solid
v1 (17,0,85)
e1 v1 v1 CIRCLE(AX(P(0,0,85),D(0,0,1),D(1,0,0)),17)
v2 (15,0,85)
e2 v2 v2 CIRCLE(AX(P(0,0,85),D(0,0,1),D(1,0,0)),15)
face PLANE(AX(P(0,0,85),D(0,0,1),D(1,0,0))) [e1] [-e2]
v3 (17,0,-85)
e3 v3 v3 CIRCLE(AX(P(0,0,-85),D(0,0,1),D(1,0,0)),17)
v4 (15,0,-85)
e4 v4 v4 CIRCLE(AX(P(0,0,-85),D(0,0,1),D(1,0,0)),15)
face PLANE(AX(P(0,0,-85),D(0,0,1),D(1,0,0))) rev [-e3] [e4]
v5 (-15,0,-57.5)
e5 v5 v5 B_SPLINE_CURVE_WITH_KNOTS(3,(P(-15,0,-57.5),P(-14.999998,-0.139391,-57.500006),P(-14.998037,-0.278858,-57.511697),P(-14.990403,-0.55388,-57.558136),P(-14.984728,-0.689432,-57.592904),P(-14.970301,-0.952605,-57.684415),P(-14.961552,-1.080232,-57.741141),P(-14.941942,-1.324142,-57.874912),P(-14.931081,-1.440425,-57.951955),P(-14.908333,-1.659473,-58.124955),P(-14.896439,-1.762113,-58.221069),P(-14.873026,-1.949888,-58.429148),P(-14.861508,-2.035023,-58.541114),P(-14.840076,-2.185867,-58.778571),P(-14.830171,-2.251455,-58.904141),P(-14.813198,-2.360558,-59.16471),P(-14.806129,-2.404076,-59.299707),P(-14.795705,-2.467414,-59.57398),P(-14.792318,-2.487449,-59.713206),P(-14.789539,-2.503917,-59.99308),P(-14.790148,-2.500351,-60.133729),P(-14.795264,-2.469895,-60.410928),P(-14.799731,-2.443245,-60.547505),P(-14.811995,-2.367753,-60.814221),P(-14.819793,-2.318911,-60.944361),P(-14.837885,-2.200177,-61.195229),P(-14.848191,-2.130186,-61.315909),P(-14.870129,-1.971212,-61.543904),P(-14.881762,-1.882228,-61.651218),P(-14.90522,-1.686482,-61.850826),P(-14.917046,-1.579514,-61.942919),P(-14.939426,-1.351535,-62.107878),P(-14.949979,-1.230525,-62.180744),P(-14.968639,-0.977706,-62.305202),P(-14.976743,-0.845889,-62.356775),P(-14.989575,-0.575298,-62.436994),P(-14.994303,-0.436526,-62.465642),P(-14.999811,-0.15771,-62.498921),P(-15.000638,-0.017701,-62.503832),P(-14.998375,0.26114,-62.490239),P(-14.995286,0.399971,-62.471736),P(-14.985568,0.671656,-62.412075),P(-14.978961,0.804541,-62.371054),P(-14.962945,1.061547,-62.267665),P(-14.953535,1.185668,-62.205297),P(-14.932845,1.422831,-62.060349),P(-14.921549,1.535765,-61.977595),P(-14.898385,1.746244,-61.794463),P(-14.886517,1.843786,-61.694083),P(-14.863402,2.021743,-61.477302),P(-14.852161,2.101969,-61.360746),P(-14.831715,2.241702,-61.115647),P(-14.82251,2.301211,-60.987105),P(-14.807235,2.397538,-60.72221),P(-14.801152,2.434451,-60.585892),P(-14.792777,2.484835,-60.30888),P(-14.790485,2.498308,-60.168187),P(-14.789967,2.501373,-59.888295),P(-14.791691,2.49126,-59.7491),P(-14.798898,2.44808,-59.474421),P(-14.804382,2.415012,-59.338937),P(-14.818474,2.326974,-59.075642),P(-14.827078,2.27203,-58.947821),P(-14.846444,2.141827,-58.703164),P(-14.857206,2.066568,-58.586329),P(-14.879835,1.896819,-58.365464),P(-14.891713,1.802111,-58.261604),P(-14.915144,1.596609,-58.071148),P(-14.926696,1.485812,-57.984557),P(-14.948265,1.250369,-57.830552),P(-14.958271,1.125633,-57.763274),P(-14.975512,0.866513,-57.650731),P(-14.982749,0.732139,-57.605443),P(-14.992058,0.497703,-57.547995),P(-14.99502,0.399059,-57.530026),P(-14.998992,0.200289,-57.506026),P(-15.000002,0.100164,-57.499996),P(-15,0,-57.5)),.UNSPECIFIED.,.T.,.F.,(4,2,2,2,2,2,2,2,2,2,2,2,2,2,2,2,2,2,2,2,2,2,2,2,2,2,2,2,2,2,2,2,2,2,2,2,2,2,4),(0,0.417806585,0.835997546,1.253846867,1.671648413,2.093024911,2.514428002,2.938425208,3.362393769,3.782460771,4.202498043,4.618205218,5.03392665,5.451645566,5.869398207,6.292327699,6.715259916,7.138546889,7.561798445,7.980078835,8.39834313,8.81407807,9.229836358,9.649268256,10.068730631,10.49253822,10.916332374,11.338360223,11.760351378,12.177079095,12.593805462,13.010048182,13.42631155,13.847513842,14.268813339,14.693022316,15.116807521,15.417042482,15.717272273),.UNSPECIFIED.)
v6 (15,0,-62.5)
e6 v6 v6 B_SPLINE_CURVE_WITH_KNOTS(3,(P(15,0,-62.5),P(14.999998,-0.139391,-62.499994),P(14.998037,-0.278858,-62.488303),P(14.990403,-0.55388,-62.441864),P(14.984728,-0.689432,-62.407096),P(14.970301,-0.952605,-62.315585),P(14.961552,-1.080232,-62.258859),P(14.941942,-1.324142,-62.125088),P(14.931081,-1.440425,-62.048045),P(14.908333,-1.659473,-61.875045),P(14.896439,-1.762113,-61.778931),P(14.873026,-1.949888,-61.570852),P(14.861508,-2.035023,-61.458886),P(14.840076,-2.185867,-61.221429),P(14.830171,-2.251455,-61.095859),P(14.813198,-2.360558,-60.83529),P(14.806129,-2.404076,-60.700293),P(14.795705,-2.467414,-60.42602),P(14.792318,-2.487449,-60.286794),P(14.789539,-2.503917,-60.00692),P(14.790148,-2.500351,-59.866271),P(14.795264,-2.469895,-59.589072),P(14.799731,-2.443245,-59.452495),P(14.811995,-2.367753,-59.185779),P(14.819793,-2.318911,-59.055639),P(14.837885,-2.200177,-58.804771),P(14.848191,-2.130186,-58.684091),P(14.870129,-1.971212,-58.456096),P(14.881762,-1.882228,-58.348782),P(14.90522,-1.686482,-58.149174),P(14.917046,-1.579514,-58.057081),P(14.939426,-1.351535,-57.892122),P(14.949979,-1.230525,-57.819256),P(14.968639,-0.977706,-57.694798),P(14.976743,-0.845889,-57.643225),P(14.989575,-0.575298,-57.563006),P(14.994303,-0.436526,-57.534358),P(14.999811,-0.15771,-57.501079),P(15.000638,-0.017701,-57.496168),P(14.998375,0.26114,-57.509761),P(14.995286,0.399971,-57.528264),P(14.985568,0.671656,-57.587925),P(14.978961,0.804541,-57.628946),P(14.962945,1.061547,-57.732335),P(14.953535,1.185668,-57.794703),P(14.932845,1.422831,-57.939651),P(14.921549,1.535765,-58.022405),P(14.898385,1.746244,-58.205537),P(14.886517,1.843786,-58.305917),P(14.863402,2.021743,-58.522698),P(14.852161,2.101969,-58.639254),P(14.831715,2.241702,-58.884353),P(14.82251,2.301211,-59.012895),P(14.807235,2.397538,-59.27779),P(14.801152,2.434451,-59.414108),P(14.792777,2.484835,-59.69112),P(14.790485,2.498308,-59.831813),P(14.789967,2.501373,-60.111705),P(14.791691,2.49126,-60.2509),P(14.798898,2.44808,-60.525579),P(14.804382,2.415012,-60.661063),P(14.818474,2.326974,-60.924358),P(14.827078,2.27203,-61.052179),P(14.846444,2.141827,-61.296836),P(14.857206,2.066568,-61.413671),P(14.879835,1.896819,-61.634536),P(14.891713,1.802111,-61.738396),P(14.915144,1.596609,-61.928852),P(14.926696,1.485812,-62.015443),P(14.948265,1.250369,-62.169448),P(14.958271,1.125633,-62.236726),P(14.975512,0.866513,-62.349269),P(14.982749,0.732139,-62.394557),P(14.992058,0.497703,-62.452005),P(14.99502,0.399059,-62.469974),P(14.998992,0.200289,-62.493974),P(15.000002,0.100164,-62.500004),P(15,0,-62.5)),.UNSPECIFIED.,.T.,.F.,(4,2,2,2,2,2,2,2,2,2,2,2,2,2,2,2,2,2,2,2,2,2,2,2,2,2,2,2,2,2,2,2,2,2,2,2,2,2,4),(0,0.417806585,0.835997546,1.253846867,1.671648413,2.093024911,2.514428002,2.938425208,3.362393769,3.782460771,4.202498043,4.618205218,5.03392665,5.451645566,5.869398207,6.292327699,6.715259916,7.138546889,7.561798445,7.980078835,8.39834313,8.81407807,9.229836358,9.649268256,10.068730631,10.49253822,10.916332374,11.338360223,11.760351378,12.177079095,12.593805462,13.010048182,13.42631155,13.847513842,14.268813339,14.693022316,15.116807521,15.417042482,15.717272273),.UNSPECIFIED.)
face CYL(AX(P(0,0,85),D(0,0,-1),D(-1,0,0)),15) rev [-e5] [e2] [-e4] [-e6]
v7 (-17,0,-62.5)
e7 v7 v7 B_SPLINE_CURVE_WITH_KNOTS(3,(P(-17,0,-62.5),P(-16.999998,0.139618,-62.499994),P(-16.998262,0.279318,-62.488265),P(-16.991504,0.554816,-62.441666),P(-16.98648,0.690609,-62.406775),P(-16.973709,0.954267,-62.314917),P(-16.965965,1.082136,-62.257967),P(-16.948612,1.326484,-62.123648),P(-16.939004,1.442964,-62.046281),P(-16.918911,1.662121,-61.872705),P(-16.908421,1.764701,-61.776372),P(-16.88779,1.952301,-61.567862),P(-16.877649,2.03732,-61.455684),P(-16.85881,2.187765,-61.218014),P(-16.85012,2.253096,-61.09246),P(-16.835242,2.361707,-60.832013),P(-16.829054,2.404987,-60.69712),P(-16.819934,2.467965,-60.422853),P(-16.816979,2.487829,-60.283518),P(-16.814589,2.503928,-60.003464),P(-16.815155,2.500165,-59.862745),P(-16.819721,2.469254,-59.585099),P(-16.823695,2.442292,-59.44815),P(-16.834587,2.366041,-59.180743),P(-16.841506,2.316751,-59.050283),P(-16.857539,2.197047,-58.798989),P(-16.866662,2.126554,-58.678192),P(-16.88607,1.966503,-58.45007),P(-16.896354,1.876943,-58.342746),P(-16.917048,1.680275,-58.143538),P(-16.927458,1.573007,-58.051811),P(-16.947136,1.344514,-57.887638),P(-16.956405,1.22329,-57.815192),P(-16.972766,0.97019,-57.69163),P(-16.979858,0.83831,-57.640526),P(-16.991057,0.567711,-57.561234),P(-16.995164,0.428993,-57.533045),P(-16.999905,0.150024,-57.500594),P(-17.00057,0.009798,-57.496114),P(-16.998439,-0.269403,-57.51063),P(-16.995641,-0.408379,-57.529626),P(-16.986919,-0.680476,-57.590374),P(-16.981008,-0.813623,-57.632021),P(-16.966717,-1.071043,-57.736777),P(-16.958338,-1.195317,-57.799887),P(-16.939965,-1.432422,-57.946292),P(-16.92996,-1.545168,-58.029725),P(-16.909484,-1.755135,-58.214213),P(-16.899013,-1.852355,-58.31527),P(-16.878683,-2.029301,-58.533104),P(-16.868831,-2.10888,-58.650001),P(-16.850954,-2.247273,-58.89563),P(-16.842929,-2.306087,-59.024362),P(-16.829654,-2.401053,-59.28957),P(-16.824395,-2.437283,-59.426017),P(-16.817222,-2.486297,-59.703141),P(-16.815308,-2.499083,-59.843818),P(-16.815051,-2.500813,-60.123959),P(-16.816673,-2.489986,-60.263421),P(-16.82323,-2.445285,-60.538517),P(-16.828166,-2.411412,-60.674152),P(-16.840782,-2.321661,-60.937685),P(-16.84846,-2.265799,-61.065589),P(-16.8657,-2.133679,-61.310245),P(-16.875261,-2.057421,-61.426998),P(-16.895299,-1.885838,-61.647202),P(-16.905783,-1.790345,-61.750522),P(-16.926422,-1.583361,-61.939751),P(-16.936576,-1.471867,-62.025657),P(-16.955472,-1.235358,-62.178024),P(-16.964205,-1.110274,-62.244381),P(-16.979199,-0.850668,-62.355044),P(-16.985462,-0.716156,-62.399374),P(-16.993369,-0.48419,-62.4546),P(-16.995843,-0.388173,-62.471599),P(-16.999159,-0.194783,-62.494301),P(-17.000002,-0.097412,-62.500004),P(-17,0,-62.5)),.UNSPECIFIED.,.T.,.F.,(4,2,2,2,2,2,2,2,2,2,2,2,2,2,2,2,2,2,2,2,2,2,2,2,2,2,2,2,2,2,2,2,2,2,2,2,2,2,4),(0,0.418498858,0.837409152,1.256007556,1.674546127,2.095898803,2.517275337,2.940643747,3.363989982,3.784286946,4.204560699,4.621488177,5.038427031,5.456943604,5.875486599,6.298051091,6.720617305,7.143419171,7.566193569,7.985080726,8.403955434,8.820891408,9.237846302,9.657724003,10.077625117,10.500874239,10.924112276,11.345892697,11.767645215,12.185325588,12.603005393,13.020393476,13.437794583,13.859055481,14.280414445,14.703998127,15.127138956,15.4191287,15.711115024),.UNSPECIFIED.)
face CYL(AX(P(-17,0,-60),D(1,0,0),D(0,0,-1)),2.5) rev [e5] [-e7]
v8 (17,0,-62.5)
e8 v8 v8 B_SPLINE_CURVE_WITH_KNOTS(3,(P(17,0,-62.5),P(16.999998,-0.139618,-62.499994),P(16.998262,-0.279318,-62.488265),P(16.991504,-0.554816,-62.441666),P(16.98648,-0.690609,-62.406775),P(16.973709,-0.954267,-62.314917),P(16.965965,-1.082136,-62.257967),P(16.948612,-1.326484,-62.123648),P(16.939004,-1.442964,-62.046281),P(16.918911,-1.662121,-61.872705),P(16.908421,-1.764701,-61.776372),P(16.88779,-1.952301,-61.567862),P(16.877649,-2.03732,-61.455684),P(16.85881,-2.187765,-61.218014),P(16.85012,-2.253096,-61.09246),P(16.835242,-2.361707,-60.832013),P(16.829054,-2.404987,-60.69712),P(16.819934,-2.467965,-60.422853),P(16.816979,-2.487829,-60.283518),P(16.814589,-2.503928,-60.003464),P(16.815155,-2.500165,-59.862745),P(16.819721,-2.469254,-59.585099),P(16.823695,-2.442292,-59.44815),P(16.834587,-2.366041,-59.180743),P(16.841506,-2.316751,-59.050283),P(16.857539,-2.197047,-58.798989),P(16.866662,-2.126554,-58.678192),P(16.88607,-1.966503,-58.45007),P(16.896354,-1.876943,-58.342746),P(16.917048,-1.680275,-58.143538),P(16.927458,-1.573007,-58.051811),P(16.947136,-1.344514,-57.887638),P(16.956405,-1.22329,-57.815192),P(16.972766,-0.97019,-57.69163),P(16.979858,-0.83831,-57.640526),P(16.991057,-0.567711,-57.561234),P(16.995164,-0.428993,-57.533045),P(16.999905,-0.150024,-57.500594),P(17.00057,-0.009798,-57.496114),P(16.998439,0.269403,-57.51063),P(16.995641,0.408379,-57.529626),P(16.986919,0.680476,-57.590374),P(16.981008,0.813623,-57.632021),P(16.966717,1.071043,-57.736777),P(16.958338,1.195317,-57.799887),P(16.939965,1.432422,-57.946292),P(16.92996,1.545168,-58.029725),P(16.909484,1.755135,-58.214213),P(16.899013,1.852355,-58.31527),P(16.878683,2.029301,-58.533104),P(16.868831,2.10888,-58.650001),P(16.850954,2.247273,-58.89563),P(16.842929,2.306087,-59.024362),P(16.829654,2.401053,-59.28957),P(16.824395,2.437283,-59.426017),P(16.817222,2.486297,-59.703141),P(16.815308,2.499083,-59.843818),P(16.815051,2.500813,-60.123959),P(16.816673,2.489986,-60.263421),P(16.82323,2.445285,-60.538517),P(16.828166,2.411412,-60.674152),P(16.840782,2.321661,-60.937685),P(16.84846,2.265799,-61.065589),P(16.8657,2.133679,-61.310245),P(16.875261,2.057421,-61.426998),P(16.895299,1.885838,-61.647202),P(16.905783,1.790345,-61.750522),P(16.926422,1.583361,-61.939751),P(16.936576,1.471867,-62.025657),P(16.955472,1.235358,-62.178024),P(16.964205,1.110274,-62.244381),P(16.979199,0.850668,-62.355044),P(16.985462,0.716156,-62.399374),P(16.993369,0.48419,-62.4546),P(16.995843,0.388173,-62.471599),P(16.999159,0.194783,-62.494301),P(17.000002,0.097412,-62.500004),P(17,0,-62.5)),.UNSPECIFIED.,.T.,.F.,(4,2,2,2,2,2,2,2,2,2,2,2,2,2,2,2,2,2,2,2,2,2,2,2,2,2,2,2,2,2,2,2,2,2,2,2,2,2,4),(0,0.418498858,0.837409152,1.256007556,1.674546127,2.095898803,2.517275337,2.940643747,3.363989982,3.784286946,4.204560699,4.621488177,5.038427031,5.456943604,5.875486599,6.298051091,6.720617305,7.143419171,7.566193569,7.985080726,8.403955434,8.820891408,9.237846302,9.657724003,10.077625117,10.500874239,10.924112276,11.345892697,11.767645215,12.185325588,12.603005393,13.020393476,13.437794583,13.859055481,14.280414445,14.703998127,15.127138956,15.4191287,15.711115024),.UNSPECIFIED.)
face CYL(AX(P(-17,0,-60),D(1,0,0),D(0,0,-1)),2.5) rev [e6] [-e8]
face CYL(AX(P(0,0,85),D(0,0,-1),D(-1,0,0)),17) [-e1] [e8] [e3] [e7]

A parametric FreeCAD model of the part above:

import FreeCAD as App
import Part
import Sketcher
from FreeCAD import Vector

doc = App.newDocument("Part")
body = doc.addObject("PartDesign::Body", "Body")

sketch1 = body.newObject("Sketcher::SketchObject", "Sketch")
sketch1.AttachmentSupport = (doc.getObject("XY_Plane"), [""])
sketch1.MapMode = "FlatFace"
sketch1.addGeometry(Part.Circle(Vector(0, 0, 0), Vector(0, 0, 1), 17), False)
sketch1.addGeometry(Part.Circle(Vector(0, 0, 0), Vector(0, 0, 1), 15), False)
sketch1.addConstraint(Sketcher.Constraint("Coincident", 0, 3, -1, 1))
sketch1.addConstraint(Sketcher.Constraint("Coincident", 1, 3, -1, 1))
sketch1.addConstraint(Sketcher.Constraint("Diameter", 0, 34.0))
sketch1.addConstraint(Sketcher.Constraint("Diameter", 1, 30.0))
pad1 = body.newObject("PartDesign::Pad", "Pad")
pad1.Profile = sketch1
pad1.Length = 170
pad1.Midplane = True

sketch2 = body.newObject("Sketcher::SketchObject", "Sketch001")
sketch2.AttachmentSupport = (doc.getObject("YZ_Plane"), [""])
sketch2.MapMode = "FlatFace"
sketch2.addGeometry(Part.Circle(Vector(0, -60, 0), Vector(0, 0, 1), 2.5), False)
sketch2.addConstraint(Sketcher.Constraint("PointOnObject", 0, 3, -2))
sketch2.addConstraint(Sketcher.Constraint("Diameter", 0, 5.0))
sketch2.addConstraint(Sketcher.Constraint("DistanceY", 0, 3, -1, 1, 60.0))
pocket1 = body.newObject("PartDesign::Pocket", "Pocket")
pocket1.Profile = sketch2
pocket1.Type = "ThroughAll"
pocket1.Midplane = True

doc.recompute()
